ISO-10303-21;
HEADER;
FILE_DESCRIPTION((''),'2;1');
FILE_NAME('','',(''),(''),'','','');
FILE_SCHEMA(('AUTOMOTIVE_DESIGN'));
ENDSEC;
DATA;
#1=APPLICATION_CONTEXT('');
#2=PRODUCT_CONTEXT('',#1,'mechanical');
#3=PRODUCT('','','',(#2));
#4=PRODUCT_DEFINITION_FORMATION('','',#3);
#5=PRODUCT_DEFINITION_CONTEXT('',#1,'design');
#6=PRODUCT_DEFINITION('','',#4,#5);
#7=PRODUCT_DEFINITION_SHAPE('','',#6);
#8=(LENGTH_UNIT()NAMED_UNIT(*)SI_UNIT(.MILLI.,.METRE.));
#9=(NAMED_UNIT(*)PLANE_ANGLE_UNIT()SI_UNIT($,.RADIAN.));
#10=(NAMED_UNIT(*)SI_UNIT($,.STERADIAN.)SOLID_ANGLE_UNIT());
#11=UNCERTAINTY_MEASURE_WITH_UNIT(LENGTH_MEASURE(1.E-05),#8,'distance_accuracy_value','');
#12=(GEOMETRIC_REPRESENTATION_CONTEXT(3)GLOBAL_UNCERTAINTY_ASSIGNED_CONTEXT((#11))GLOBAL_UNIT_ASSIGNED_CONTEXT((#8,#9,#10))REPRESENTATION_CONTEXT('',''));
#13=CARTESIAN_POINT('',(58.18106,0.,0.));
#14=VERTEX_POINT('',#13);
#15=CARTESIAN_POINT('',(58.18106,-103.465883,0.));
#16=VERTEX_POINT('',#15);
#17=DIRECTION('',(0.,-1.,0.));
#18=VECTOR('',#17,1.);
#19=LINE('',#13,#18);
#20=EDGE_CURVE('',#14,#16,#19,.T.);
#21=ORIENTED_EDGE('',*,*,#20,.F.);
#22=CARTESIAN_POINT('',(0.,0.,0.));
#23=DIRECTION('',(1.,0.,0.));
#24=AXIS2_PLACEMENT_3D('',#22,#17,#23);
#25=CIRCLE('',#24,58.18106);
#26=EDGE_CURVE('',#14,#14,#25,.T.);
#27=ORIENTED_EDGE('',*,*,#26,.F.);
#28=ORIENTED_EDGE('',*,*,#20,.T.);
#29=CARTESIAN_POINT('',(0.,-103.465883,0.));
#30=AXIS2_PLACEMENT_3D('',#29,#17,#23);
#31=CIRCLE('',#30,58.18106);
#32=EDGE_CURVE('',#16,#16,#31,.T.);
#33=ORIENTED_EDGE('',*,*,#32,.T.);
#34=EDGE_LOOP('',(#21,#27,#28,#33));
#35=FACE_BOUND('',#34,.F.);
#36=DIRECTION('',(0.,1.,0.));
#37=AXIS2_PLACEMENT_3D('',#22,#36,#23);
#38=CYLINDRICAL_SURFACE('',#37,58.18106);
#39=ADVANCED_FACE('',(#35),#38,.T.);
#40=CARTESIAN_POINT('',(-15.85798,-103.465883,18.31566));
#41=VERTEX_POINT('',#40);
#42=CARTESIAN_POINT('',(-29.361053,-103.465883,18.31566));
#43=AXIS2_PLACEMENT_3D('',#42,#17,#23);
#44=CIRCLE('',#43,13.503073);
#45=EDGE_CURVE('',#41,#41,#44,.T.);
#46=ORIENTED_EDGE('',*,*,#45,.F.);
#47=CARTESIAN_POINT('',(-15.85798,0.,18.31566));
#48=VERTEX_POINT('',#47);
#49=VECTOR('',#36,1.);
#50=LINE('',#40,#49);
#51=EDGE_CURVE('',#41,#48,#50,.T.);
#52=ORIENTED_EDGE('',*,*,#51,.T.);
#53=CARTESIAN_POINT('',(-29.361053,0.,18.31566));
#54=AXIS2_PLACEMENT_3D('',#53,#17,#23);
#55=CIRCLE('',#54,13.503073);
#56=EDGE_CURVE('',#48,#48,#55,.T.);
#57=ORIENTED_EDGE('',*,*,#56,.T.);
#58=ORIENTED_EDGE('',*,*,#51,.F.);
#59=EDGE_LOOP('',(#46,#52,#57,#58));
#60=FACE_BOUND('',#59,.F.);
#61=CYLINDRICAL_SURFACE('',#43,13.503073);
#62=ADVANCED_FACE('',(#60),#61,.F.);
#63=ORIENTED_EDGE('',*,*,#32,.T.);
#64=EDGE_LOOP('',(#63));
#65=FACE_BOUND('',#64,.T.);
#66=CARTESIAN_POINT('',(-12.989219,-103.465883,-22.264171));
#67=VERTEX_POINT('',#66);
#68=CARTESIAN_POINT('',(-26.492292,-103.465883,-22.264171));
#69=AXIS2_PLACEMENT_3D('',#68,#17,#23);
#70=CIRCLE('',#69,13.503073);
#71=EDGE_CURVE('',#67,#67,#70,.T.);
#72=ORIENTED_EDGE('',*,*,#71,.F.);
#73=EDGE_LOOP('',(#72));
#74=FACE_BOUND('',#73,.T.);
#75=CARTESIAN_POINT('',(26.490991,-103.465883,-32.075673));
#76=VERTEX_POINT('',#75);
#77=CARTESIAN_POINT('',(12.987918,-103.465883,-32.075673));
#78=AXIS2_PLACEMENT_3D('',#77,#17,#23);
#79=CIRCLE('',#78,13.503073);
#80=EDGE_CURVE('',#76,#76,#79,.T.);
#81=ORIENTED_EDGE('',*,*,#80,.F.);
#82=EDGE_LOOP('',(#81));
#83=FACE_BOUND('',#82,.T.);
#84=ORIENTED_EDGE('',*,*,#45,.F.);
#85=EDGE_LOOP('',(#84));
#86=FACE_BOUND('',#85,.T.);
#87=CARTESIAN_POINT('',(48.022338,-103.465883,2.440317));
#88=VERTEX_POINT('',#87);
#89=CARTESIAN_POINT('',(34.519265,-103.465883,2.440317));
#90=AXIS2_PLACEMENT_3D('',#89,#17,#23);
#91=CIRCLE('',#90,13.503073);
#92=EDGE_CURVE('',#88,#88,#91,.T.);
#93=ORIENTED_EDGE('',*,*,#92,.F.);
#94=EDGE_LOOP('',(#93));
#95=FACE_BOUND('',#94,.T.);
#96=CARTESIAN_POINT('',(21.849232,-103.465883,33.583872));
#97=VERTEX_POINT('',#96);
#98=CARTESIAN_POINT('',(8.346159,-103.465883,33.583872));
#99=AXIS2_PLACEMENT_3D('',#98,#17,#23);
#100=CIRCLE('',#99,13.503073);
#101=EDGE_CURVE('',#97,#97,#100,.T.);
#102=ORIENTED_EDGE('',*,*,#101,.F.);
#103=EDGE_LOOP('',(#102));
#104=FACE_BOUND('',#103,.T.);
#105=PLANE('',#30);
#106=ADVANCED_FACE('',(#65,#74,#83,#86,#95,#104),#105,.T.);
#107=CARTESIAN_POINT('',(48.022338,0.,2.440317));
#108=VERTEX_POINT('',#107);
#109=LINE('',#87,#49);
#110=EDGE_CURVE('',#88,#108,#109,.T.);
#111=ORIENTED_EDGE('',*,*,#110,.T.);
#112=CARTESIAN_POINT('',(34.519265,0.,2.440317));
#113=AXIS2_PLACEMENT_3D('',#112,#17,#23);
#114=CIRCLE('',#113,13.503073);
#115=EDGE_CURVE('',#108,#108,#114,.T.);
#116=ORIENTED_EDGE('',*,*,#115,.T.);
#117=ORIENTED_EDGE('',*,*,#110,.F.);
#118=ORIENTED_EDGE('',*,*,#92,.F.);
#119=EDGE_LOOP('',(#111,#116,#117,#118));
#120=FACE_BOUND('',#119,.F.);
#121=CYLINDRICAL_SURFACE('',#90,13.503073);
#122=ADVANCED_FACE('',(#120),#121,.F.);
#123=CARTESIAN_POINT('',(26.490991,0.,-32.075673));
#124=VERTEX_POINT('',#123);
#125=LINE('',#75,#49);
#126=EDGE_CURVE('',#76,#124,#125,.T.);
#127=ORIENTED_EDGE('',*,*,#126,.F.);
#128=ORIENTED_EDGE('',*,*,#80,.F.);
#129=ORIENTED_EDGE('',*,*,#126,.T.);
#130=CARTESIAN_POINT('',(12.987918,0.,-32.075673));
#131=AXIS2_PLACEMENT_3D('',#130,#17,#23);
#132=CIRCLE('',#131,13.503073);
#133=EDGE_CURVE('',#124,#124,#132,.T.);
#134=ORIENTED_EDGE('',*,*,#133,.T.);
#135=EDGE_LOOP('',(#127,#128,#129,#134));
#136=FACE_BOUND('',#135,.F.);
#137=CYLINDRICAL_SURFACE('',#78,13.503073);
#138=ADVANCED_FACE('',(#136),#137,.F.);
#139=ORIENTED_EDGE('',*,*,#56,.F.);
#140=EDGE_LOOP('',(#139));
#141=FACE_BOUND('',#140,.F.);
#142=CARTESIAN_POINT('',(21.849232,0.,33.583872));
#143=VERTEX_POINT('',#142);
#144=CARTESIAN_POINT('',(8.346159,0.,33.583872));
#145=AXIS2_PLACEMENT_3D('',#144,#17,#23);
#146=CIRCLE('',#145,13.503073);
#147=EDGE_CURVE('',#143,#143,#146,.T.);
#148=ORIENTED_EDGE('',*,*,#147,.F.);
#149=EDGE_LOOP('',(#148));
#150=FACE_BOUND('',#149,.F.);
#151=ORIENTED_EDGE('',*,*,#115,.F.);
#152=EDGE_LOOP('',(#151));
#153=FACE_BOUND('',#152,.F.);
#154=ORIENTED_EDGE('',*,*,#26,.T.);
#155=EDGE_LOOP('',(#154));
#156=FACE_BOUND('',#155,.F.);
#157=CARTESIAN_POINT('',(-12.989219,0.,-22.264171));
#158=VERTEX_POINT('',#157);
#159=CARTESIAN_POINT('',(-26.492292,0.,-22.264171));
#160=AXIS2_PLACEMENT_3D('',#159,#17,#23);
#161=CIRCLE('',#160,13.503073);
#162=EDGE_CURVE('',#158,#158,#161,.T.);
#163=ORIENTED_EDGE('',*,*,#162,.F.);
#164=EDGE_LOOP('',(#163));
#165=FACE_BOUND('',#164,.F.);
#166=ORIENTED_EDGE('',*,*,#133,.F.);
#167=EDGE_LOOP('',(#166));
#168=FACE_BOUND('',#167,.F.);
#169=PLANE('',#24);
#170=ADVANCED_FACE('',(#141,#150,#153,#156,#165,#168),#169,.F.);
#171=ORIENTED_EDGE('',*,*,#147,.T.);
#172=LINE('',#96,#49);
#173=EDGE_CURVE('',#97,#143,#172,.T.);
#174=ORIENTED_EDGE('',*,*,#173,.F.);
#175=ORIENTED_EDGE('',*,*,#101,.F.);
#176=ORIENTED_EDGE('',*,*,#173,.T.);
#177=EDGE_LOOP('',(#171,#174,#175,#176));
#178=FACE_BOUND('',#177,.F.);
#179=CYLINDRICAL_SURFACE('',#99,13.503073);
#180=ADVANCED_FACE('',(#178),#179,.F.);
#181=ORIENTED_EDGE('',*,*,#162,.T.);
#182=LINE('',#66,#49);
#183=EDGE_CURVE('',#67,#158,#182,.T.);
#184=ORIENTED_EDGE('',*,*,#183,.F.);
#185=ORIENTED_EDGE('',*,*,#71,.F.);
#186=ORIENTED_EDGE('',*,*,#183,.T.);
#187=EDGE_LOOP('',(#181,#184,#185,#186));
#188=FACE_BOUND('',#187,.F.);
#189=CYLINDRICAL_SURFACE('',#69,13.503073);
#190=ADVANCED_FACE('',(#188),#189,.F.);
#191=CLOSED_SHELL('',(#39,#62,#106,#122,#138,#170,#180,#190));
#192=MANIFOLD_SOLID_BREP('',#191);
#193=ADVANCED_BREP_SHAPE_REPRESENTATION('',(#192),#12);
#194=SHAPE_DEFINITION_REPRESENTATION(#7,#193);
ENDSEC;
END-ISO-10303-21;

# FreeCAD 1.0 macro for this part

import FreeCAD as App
import Part
import Sketcher

doc = App.newDocument("Part")
body = doc.addObject("PartDesign::Body", "Body")

# Sketch on XZ plane
sketch1 = doc.addObject("Sketcher::SketchObject", "Sketch")
body.addObject(sketch1)
sketch1.AttachmentSupport = (doc.XZ_Plane, [""])
sketch1.MapMode = "FlatFace"
sketch1.addGeometry(Part.Circle(App.Vector(0, 0, 0), App.Vector(0, 0, 1), 58), False)
sketch1.addConstraint([
    Sketcher.Constraint("Coincident", 0, 3, -1, 1),
    Sketcher.Constraint("Diameter", 0, 116.36212),
])
pad1 = doc.addObject("PartDesign::Pad", "Pad")
body.addObject(pad1)
pad1.Profile = sketch1
pad1.Length = 103.465883

# Sketch on XZ plane
sketch2 = doc.addObject("Sketcher::SketchObject", "Sketch001")
body.addObject(sketch2)
sketch2.AttachmentSupport = (doc.XZ_Plane, [""])
sketch2.MapMode = "FlatFace"
sketch2.AttachmentOffset = App.Placement(App.Vector(0, 0, 103.465883), App.Rotation())
sketch2.addGeometry(Part.Circle(App.Vector(8, 34, 0), App.Vector(0, 0, 1), 14), False)
sketch2.addConstraint([
    Sketcher.Constraint("Diameter", 0, 27.006146),
    Sketcher.Constraint("DistanceX", -1, 1, 0, 3, 8.346159),
    Sketcher.Constraint("DistanceY", -1, 1, 0, 3, 33.583872),
])
pocket1 = doc.addObject("PartDesign::Pocket", "Pocket")
body.addObject(pocket1)
pocket1.Profile = sketch2
pocket1.Length = 177.737946

# Sketch on XZ plane
sketch3 = doc.addObject("Sketcher::SketchObject", "Sketch002")
body.addObject(sketch3)
sketch3.AttachmentSupport = (doc.XZ_Plane, [""])
sketch3.MapMode = "FlatFace"
sketch3.AttachmentOffset = App.Placement(App.Vector(0, 0, 103.465883), App.Rotation())
sketch3.addGeometry([
    Part.Circle(App.Vector(-29, 18, 0), App.Vector(0, 0, 1), 14),
    Part.Circle(App.Vector(-26, -22, 0), App.Vector(0, 0, 1), 14),
    Part.Circle(App.Vector(13, -32, 0), App.Vector(0, 0, 1), 14),
    Part.Circle(App.Vector(35, 2, 0), App.Vector(0, 0, 1), 14),
], False)
sketch3.addConstraint([
    Sketcher.Constraint("Equal", 0, 1),
    Sketcher.Constraint("Equal", 1, 2),
    Sketcher.Constraint("Equal", 2, 3),
    Sketcher.Constraint("Diameter", 0, 27.006146),
    Sketcher.Constraint("DistanceY", -1, 1, 0, 3, 18.31566),
    Sketcher.Constraint("DistanceX", 1, 3, -1, 1, 26.492292),
    Sketcher.Constraint("DistanceY", 1, 3, -1, 1, 22.264171),
    Sketcher.Constraint("DistanceX", 0, 3, 1, 3, 2.868761),
    Sketcher.Constraint("DistanceX", 1, 3, 2, 3, 39.48021),
    Sketcher.Constraint("DistanceY", 2, 3, 3, 3, 34.51599),
    Sketcher.Constraint("DistanceY", 1, 3, 3, 3, 24.704488),
    Sketcher.Constraint("DistanceX", -1, 1, 3, 3, 34.519265),
])
pocket2 = doc.addObject("PartDesign::Pocket", "Pocket001")
body.addObject(pocket2)
pocket2.Profile = sketch3
pocket2.Length = 213.257074

doc.recompute()
